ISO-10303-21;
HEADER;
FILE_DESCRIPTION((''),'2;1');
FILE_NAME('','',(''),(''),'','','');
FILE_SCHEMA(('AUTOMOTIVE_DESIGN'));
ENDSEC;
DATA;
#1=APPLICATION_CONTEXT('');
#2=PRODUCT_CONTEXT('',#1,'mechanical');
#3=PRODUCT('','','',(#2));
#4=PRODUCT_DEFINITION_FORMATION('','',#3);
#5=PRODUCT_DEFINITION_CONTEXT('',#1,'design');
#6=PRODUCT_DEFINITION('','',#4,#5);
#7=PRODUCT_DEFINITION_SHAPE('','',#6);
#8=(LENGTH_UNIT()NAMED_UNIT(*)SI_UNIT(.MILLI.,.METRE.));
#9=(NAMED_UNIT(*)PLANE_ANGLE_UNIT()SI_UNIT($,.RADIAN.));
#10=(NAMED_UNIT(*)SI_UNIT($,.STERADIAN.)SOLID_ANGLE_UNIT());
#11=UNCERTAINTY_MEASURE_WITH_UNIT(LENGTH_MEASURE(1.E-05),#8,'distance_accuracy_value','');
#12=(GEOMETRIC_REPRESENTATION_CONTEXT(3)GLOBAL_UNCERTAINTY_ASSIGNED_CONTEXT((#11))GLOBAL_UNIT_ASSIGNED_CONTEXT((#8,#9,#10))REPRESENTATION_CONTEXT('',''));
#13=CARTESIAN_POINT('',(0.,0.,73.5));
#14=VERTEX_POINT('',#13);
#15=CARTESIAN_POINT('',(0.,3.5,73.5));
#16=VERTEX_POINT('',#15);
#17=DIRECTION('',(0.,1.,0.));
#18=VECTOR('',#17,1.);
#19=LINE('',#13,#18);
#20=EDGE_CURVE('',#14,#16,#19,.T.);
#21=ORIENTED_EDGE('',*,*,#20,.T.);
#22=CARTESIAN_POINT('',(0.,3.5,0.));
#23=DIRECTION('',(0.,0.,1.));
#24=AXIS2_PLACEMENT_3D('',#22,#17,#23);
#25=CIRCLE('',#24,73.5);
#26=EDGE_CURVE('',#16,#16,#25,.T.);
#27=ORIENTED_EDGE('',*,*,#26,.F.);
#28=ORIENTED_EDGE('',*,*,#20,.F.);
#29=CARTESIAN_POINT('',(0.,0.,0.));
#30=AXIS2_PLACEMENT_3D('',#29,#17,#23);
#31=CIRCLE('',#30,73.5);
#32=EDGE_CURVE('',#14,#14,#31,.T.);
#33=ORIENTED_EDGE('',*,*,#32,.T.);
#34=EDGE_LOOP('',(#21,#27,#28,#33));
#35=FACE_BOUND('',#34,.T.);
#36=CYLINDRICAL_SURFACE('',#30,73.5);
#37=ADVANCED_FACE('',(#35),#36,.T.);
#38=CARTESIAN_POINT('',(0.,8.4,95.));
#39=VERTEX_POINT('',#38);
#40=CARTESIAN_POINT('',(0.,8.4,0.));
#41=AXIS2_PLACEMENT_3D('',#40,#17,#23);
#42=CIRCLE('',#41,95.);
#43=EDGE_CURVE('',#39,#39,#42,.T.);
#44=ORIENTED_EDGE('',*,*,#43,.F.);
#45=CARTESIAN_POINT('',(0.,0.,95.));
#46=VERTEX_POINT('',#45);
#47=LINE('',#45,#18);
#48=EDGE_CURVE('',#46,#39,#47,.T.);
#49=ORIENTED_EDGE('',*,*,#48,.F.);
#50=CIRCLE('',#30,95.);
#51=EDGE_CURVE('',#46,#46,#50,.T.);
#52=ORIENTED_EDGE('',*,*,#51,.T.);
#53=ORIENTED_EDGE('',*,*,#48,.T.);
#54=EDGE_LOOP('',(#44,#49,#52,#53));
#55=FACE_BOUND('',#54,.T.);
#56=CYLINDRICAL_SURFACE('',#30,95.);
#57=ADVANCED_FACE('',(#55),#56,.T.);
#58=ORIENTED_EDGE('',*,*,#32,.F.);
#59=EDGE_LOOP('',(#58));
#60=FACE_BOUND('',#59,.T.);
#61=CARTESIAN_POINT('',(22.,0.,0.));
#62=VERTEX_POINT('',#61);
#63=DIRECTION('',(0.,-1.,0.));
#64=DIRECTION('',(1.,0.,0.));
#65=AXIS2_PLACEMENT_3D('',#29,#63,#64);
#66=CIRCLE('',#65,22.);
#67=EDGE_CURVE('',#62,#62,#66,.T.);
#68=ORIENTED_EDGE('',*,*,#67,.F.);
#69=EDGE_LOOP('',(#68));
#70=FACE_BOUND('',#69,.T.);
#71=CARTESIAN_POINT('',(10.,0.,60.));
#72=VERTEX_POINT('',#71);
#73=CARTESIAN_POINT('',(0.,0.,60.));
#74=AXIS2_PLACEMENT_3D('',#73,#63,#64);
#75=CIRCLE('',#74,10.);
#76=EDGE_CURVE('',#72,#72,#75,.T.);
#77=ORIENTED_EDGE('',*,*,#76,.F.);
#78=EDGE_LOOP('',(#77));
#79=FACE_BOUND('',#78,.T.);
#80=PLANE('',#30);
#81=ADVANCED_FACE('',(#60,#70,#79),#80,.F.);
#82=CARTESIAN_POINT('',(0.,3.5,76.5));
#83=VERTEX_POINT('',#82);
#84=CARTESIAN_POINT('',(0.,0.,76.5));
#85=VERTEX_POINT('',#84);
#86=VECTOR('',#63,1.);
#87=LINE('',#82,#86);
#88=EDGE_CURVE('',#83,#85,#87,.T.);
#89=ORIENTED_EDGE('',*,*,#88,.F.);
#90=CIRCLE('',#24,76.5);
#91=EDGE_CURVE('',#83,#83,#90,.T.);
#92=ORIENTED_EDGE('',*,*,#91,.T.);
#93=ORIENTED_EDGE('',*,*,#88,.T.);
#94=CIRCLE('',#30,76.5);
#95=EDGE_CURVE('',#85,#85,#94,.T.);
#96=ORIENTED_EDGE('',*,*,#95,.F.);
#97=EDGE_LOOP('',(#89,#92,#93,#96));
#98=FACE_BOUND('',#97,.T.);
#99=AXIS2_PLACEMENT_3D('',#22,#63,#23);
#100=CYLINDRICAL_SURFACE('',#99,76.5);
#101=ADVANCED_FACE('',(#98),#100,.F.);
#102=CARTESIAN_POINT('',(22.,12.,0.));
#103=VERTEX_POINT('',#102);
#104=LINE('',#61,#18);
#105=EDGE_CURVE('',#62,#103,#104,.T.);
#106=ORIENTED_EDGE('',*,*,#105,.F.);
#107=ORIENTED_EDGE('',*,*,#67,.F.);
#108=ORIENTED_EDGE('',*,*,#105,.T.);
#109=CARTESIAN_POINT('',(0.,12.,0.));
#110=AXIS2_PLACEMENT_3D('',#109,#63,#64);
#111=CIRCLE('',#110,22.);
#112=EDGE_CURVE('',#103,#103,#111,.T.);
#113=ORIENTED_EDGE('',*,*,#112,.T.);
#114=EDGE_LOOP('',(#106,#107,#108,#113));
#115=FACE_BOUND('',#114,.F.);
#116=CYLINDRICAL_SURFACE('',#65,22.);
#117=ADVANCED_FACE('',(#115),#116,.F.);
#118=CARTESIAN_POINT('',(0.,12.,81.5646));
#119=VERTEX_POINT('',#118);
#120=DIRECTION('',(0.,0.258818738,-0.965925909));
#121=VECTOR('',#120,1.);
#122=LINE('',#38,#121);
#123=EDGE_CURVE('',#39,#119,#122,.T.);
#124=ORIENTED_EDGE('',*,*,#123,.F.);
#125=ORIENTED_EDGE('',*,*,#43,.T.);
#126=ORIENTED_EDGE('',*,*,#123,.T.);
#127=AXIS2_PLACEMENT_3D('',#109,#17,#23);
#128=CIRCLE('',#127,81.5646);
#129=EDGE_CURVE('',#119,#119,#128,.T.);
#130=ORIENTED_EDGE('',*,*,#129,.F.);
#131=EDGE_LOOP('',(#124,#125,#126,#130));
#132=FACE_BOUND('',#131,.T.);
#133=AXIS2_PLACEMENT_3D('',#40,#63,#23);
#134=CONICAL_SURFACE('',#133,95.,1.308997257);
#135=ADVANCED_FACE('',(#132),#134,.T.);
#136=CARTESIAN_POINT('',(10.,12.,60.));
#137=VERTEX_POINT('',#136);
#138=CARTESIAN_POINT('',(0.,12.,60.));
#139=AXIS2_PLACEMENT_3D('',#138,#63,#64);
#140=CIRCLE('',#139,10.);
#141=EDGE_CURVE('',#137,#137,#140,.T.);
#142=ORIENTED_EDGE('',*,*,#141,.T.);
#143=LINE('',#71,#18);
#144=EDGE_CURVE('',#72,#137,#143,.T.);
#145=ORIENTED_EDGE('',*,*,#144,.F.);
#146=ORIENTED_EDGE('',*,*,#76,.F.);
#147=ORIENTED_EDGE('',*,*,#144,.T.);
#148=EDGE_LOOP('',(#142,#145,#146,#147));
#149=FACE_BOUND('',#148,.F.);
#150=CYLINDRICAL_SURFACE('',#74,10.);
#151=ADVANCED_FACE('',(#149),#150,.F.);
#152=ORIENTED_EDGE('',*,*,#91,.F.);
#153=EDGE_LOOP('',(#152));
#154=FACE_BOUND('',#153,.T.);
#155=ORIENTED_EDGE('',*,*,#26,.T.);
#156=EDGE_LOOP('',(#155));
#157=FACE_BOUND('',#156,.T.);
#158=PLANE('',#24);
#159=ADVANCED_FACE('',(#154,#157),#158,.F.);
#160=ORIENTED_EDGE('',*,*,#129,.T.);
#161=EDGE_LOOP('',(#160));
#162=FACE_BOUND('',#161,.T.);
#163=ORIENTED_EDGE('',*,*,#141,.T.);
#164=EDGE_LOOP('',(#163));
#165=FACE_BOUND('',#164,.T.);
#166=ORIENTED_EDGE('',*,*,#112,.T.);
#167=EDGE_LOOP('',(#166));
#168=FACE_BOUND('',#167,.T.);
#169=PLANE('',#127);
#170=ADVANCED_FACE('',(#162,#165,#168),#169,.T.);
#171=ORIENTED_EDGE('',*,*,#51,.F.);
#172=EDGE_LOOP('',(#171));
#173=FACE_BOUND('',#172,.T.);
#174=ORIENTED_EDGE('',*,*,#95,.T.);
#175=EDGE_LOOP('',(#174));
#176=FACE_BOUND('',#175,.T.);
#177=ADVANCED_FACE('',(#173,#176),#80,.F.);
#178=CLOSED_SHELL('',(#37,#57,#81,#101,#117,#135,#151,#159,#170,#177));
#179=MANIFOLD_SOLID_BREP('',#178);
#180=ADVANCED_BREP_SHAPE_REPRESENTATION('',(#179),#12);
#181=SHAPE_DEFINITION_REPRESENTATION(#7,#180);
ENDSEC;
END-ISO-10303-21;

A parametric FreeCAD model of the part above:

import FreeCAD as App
import Part
import Sketcher
Q = App.Units.Quantity

doc = App.newDocument("Part")
params = doc.addObject("Spreadsheet::Sheet", "Params")
for row, (alias, value) in enumerate([
    ("sketch1_width", "12 mm"),
    ("sketch1_height", "3 mm"),
    ("sketch1_width2", "8.4 mm"),
    ("sketch1_width3", "3.5 mm"),
    ("sketch1_height2", "73.5 mm"),
    ("revolution_angle", "360 deg"),
    ("sketch2_diameter", "44 mm"),
    ("sketch2_diameter2", "20 mm"),
], start=1):
    params.set(f"A{row}", alias)
    params.set(f"B{row}", "=" + value)
    params.setAlias(f"B{row}", alias)

body = doc.addObject("PartDesign::Body", "Body")

# Sketch on YZ plane
sketch1 = body.newObject("Sketcher::SketchObject", "Sketch")
sketch1.AttachmentSupport = (doc.getObject("YZ_Plane"), [""])
sketch1.MapMode = "FlatFace"
sketch1.addGeometry([
    Part.LineSegment(App.Vector(8.4, 95, 0), App.Vector(0, 95, 0)),  # 0
    Part.LineSegment(App.Vector(0, 95, 0), App.Vector(0, 76.5, 0)),  # 1
    Part.LineSegment(App.Vector(0, 76.5, 0), App.Vector(3.5, 76.5, 0)),  # 2
    Part.LineSegment(App.Vector(3.5, 76.5, 0), App.Vector(3.5, 73.5, 0)),  # 3
    Part.LineSegment(App.Vector(3.5, 73.5, 0), App.Vector(0, 73.5, 0)),  # 4
    Part.LineSegment(App.Vector(0, 73.5, 0), App.Vector(0, 0, 0)),  # 5
    Part.LineSegment(App.Vector(0, 0, 0), App.Vector(12, 0, 0)),  # 6
    Part.LineSegment(App.Vector(12, 0, 0), App.Vector(12, 81.5646, 0)),  # 7
    Part.LineSegment(App.Vector(12, 81.5646, 0), App.Vector(8.4, 95, 0)),  # 8
], False)
sketch1.addConstraint([
    Sketcher.Constraint("Coincident", 0, 2, 1, 1),
    Sketcher.Constraint("Coincident", 1, 2, 2, 1),
    Sketcher.Constraint("Coincident", 2, 2, 3, 1),
    Sketcher.Constraint("Coincident", 3, 2, 4, 1),
    Sketcher.Constraint("Coincident", 4, 2, 5, 1),
    Sketcher.Constraint("Coincident", 5, 2, 6, 1),
    Sketcher.Constraint("Coincident", 6, 2, 7, 1),
    Sketcher.Constraint("Coincident", 7, 2, 8, 1),
    Sketcher.Constraint("Coincident", 8, 2, 0, 1),
    Sketcher.Constraint("Horizontal", 0),
    Sketcher.Constraint("Vertical", 1),
    Sketcher.Constraint("Horizontal", 2),
    Sketcher.Constraint("Vertical", 3),
    Sketcher.Constraint("Horizontal", 4),
    Sketcher.Constraint("Vertical", 5),
    Sketcher.Constraint("Horizontal", 6),
    Sketcher.Constraint("Vertical", 7),
    Sketcher.Constraint("Coincident", 5, 2, -1, 1),
    Sketcher.Constraint("PointOnObject", 0, 2, -2),
    Sketcher.Constraint("DistanceX", 6, 1, 6, 2, Q("12 mm")),
    Sketcher.Constraint("DistanceY", 3, 2, 3, 1, Q("3 mm")),
    Sketcher.Constraint("DistanceX", 0, 2, 0, 1, Q("8.4 mm")),
    Sketcher.Constraint("DistanceX", 2, 1, 2, 2, Q("3.5 mm")),
    Sketcher.Constraint("DistanceY", 5, 2, 5, 1, Q("73.5 mm")),
    Sketcher.Constraint("DistanceY", -1, 1, 0, 2, Q("95 mm")),
    Sketcher.Constraint("Angle", 8, Q("105 deg")),
])
sketch1.setExpression("Constraints[19]", "Params.sketch1_width")
sketch1.setExpression("Constraints[20]", "Params.sketch1_height")
sketch1.setExpression("Constraints[21]", "Params.sketch1_width2")
sketch1.setExpression("Constraints[22]", "Params.sketch1_width3")
sketch1.setExpression("Constraints[23]", "Params.sketch1_height2")
revolution = body.newObject("PartDesign::Revolution", "Revolution")
revolution.Profile = sketch1
revolution.ReferenceAxis = (sketch1, ["H_Axis"])
revolution.setExpression("Angle", "Params.revolution_angle")

# Sketch on XZ plane
sketch2 = body.newObject("Sketcher::SketchObject", "Sketch001")
sketch2.AttachmentSupport = (doc.getObject("XZ_Plane"), [""])
sketch2.MapMode = "FlatFace"
sketch2.addGeometry([
    Part.Circle(App.Vector(0, 0, 0), App.Vector(0, 0, 1), 22),
    Part.Circle(App.Vector(0, 60, 0), App.Vector(0, 0, 1), 10),
], False)
sketch2.addConstraint([
    Sketcher.Constraint("Coincident", 0, 3, -1, 1),
    Sketcher.Constraint("PointOnObject", 1, 3, -2),
    Sketcher.Constraint("Diameter", 0, Q("44 mm")),
    Sketcher.Constraint("Diameter", 1, Q("20 mm")),
    Sketcher.Constraint("DistanceY", -1, 1, 1, 3, Q("60 mm")),
])
sketch2.setExpression("Constraints[2]", "Params.sketch2_diameter")
sketch2.setExpression("Constraints[3]", "Params.sketch2_diameter2")
pocket1 = body.newObject("PartDesign::Pocket", "Pocket")
pocket1.Profile = sketch2
pocket1.Type = "ThroughAll"

doc.recompute()
